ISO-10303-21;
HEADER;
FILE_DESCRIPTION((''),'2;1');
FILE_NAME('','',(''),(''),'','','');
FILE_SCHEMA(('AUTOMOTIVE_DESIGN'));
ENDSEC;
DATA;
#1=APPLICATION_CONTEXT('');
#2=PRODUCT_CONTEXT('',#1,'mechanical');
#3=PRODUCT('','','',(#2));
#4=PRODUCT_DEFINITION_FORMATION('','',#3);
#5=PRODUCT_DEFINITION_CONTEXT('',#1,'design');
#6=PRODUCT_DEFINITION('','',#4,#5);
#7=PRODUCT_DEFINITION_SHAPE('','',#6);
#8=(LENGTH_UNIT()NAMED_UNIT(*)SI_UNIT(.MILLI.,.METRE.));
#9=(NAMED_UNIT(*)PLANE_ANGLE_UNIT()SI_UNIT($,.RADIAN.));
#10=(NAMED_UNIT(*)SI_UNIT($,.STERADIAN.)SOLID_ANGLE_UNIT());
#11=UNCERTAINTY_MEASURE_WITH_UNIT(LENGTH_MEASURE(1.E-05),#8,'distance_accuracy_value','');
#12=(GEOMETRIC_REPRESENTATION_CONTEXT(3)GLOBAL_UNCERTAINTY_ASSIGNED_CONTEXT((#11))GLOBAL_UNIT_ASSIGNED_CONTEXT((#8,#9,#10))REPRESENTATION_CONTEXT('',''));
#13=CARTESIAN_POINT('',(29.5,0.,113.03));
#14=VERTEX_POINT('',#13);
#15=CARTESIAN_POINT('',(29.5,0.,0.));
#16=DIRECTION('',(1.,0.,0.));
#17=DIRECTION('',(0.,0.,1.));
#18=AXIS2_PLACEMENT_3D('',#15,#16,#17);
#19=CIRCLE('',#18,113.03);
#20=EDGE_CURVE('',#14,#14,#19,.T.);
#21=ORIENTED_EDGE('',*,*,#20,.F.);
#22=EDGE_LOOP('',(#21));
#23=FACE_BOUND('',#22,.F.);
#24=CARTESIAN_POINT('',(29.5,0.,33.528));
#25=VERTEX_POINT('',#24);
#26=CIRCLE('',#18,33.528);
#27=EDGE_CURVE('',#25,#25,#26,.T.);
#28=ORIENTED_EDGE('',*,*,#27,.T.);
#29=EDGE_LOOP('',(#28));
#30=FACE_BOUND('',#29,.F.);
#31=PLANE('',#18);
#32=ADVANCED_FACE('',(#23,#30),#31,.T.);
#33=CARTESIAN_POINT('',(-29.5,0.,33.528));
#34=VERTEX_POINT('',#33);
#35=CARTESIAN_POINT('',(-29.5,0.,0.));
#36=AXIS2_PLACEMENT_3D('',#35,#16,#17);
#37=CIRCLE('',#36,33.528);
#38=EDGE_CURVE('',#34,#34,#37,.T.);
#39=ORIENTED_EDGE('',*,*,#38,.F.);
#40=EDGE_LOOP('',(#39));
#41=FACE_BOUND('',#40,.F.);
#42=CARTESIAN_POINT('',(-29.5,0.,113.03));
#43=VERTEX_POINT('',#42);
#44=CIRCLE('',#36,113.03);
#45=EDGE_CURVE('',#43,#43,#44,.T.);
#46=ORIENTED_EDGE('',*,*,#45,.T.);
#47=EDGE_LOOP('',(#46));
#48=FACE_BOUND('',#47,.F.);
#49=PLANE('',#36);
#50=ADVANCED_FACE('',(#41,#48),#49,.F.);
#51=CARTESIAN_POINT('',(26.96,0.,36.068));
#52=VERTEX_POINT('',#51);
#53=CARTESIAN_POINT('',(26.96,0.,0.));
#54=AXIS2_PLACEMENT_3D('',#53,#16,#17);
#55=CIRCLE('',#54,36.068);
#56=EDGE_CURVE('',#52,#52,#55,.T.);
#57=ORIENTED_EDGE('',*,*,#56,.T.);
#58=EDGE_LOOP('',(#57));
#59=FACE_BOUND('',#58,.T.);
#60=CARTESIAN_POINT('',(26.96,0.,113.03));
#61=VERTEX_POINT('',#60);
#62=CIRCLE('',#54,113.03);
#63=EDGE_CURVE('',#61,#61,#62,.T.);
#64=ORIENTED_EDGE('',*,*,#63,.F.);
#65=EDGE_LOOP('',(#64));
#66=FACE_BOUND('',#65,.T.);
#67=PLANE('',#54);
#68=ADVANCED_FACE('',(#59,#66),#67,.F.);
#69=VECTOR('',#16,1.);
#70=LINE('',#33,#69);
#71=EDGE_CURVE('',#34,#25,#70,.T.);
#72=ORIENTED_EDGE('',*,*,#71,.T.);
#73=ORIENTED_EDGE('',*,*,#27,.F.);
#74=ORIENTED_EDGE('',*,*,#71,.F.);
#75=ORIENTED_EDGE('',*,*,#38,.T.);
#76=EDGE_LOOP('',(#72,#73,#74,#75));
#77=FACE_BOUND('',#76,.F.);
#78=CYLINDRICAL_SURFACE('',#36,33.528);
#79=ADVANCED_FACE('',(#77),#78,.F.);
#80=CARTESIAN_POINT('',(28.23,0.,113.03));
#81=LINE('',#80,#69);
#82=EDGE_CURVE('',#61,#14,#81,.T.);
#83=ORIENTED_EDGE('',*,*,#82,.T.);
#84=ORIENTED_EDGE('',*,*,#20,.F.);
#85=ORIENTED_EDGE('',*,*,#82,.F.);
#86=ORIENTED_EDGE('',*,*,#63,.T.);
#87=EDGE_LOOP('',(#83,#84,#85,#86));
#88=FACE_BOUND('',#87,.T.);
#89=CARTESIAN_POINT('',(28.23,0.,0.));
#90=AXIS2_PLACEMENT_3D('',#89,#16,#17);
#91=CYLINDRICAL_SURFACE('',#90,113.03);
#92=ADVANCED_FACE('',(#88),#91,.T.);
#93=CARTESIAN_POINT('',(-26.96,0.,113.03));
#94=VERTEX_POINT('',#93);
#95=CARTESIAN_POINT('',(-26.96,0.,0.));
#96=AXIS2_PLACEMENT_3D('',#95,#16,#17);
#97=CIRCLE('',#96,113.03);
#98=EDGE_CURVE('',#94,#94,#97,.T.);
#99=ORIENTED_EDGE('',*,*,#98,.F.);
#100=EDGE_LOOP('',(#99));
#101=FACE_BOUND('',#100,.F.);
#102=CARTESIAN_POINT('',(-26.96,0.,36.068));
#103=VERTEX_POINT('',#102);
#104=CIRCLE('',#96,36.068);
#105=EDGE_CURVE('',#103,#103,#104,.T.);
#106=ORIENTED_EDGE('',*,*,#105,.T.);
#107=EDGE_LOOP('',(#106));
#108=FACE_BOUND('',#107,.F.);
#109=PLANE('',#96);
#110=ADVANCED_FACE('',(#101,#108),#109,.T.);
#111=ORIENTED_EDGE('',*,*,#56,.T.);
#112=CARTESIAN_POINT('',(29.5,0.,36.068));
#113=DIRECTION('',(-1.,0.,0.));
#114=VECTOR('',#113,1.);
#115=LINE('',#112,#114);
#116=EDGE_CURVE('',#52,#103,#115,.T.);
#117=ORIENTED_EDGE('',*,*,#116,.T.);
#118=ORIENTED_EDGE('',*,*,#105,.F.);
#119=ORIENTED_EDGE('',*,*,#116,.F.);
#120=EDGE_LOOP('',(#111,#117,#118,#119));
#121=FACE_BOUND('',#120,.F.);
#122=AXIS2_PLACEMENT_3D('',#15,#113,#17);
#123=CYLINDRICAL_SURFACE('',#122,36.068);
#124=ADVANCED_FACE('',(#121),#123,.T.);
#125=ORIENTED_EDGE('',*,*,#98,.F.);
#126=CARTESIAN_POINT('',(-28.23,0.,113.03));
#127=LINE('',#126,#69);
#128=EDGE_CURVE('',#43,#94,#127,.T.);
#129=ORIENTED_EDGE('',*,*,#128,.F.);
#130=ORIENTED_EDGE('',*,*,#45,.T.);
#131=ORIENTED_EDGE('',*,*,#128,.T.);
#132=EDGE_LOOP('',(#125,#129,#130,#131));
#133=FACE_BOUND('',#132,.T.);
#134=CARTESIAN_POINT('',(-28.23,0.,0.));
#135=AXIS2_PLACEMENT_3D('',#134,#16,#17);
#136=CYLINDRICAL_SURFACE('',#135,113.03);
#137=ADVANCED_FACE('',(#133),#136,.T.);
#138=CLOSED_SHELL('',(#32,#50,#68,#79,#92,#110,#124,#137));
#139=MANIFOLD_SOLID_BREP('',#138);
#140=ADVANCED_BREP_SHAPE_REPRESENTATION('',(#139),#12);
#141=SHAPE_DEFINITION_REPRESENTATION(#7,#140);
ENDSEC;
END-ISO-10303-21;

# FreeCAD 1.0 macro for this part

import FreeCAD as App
import Part
import Sketcher

V = App.Vector
Q = App.Units.Quantity

doc = App.newDocument("Part")
params = doc.addObject("Spreadsheet::Sheet", "Params")
for row, (alias, value) in enumerate([
    ("sketch1_width", "0.1 in"),
    ("sketch1_height", "3.13 in"),
    ("sketch1_height2", "3.03 in"),
    ("revolution_angle", "360 deg"),
], start=1):
    params.set(f"A{row}", alias)
    params.set(f"B{row}", "=" + value)
    params.setAlias(f"B{row}", alias)

body = doc.addObject("PartDesign::Body", "Body")

sketch1 = body.newObject("Sketcher::SketchObject", "Sketch")
sketch1.AttachmentSupport = (doc.getObject("XZ_Plane"), [""])
sketch1.MapMode = "FlatFace"
sketch1.addGeometry([
    Part.LineSegment(V(29.5, 33.528, 0), V(29.5, 113.03, 0)),
    Part.LineSegment(V(29.5, 113.03, 0), V(26.96, 113.03, 0)),
    Part.LineSegment(V(26.96, 113.03, 0), V(26.96, 36.068, 0)),
    Part.LineSegment(V(26.96, 36.068, 0), V(-26.96, 36.068, 0)),
    Part.LineSegment(V(-26.96, 36.068, 0), V(-26.96, 113.03, 0)),
    Part.LineSegment(V(-26.96, 113.03, 0), V(-29.5, 113.03, 0)),
    Part.LineSegment(V(-29.5, 113.03, 0), V(-29.5, 33.528, 0)),
    Part.LineSegment(V(-29.5, 33.528, 0), V(29.5, 33.528, 0)),
], False)
sketch1.addConstraint([
    Sketcher.Constraint("Coincident", 0, 2, 1, 1),
    Sketcher.Constraint("Coincident", 1, 2, 2, 1),
    Sketcher.Constraint("Coincident", 2, 2, 3, 1),
    Sketcher.Constraint("Coincident", 3, 2, 4, 1),
    Sketcher.Constraint("Coincident", 4, 2, 5, 1),
    Sketcher.Constraint("Coincident", 5, 2, 6, 1),
    Sketcher.Constraint("Coincident", 6, 2, 7, 1),
    Sketcher.Constraint("Coincident", 7, 2, 0, 1),
    Sketcher.Constraint("Vertical", 0),
    Sketcher.Constraint("Horizontal", 1),
    Sketcher.Constraint("Vertical", 2),
    Sketcher.Constraint("Horizontal", 3),
    Sketcher.Constraint("Vertical", 4),
    Sketcher.Constraint("Horizontal", 5),
    Sketcher.Constraint("Vertical", 6),
    Sketcher.Constraint("Horizontal", 7),
    Sketcher.Constraint("Symmetric", 1, 2, 4, 2, -2),
    Sketcher.Constraint("Equal", 1, 5),
    Sketcher.Constraint("DistanceX", 1, 2, 1, 1, Q("0.1 in")),
    Sketcher.Constraint("DistanceY", 0, 1, 0, 2, Q("3.13 in")),
    Sketcher.Constraint("DistanceY", 2, 2, 2, 1, Q("3.03 in")),
    Sketcher.Constraint("DistanceY", -1, 1, 0, 2, Q("4.45 in")),
    Sketcher.Constraint("DistanceX", 3, 2, 3, 1, 53.92),
])
sketch1.setExpression("Constraints[18]", "Params.sketch1_width")
sketch1.setExpression("Constraints[19]", "Params.sketch1_height")
sketch1.setExpression("Constraints[20]", "Params.sketch1_height2")
revolution = body.newObject("PartDesign::Revolution", "Revolution")
revolution.Profile = sketch1
revolution.ReferenceAxis = (sketch1, ["H_Axis"])
revolution.setExpression("Angle", "Params.revolution_angle")

doc.recompute()
